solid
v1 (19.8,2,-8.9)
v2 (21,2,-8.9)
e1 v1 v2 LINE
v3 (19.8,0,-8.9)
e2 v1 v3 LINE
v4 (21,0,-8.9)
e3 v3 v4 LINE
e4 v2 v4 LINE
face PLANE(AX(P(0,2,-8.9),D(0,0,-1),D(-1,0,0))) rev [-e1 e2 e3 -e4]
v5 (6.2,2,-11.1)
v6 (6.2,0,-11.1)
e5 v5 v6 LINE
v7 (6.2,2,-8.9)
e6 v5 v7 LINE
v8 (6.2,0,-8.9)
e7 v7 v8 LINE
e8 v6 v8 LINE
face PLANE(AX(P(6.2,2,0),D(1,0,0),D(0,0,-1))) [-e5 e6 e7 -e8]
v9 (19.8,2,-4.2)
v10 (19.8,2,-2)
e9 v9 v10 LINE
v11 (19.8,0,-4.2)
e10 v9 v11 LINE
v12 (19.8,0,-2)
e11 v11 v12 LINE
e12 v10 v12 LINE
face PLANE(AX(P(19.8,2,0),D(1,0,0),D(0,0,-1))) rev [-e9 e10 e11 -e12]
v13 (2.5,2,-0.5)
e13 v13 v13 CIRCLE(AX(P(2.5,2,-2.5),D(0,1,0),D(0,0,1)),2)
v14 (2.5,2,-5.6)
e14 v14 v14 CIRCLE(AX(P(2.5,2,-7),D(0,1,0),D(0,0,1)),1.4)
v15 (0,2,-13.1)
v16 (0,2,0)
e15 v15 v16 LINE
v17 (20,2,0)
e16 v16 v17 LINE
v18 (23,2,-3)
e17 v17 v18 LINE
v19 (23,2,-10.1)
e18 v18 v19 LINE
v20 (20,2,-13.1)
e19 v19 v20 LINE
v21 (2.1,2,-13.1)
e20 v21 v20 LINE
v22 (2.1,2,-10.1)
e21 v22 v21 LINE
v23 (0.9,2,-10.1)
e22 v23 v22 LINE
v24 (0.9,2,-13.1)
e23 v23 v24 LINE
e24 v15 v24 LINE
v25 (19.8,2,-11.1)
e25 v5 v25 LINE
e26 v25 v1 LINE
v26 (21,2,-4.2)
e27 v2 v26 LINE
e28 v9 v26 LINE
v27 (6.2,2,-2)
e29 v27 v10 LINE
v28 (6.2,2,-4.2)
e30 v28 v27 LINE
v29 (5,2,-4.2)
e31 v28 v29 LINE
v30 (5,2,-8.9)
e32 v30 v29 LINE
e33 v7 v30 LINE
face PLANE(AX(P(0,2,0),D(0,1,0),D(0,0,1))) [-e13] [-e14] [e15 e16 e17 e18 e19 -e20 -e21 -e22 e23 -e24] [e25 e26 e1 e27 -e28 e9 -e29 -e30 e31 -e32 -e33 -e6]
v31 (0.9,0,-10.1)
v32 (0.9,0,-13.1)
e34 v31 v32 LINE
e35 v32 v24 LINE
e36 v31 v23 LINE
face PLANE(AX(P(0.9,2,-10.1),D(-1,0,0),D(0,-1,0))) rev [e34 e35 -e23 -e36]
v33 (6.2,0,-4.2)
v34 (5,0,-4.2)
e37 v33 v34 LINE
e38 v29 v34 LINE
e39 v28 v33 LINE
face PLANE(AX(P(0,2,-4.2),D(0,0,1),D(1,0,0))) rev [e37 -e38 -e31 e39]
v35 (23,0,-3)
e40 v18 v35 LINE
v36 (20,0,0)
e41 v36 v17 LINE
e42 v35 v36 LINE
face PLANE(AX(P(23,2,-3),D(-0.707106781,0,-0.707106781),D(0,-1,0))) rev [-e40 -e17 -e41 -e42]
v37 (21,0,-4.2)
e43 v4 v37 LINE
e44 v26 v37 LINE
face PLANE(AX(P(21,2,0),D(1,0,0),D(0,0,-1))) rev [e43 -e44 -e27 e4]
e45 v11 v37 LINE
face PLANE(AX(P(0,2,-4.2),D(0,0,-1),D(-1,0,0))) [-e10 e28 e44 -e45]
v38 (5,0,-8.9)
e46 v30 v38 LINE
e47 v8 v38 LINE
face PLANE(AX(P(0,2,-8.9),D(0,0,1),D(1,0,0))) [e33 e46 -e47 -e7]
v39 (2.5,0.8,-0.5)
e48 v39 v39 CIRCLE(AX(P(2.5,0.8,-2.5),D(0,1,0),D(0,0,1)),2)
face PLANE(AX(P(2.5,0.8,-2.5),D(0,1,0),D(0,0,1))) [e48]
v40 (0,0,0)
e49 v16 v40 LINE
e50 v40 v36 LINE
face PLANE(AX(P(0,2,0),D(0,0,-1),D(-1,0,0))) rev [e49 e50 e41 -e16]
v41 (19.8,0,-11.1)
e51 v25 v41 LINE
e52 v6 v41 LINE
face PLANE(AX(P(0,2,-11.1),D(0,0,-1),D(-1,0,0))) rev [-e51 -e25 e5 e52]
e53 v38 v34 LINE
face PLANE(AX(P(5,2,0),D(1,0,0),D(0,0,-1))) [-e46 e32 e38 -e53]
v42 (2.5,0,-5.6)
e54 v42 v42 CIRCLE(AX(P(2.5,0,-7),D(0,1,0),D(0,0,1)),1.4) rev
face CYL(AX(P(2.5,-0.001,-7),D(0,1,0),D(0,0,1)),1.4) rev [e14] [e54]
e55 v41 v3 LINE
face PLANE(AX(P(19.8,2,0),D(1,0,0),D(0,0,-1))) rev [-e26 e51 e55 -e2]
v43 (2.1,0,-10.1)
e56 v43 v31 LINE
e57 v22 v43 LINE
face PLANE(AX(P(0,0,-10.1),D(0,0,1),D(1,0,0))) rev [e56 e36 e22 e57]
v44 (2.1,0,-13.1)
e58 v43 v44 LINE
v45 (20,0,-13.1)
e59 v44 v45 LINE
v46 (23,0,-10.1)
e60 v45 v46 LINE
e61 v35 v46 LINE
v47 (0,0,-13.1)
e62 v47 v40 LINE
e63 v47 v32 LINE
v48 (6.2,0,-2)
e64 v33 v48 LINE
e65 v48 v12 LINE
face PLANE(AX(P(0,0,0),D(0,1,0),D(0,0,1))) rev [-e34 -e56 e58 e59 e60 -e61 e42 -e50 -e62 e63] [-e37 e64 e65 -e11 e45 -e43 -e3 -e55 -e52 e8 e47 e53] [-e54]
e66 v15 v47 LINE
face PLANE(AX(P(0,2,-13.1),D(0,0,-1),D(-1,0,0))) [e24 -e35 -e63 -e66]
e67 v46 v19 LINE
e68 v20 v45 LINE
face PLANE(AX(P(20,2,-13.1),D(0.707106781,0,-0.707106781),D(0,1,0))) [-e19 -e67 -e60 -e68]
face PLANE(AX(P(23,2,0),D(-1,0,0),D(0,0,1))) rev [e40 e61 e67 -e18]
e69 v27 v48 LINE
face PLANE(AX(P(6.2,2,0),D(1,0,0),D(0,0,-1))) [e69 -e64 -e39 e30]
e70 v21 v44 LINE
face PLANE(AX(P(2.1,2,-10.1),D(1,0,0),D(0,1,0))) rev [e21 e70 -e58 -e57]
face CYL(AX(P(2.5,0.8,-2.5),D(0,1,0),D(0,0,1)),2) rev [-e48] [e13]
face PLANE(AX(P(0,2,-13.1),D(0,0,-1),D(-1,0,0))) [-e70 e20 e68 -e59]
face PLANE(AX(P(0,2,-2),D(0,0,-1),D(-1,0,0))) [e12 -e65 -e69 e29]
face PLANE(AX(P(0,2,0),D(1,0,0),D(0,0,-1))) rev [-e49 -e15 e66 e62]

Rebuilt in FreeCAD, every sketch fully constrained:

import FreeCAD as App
import Part
import Sketcher
from FreeCAD import Vector
Q = App.Units.Quantity


def edges_at(feature, points):
    """Names of the edges that pass closest to the given points."""
    edges = feature.Shape.Edges
    near = lambda p: min(range(len(edges)), key=lambda i: edges[i].distToShape(Part.Vertex(*p))[0])
    return sorted({f"Edge{near(p) + 1}" for p in points})

doc = App.newDocument("Part")
body = doc.addObject("PartDesign::Body", "Body")

sketch1 = doc.addObject("Sketcher::SketchObject", "Sketch")
body.addObject(sketch1)
sketch1.AttachmentSupport = (doc.XZ_Plane, [""])
sketch1.MapMode = "FlatFace"
sketch1.addGeometry(Part.LineSegment(Vector(0, -13.1, 0), Vector(0, 0, 0)), False)
sketch1.addGeometry(Part.LineSegment(Vector(0, 0, 0), Vector(23, 0, 0)), False)
sketch1.addGeometry(Part.LineSegment(Vector(23, 0, 0), Vector(23, -13.1, 0)), False)
sketch1.addGeometry(Part.LineSegment(Vector(23, -13.1, 0), Vector(0, -13.1, 0)), False)
sketch1.addGeometry(Part.LineSegment(Vector(5, -8.9, 0), Vector(6.2, -8.9, 0)), False)
sketch1.addGeometry(Part.LineSegment(Vector(6.2, -8.9, 0), Vector(6.2, -11.1, 0)), False)
sketch1.addGeometry(Part.LineSegment(Vector(6.2, -11.1, 0), Vector(19.8, -11.1, 0)), False)
sketch1.addGeometry(Part.LineSegment(Vector(19.8, -11.1, 0), Vector(19.8, -8.9, 0)), False)
sketch1.addGeometry(Part.LineSegment(Vector(19.8, -8.9, 0), Vector(21, -8.9, 0)), False)
sketch1.addGeometry(Part.LineSegment(Vector(21, -8.9, 0), Vector(21, -4.2, 0)), False)
sketch1.addGeometry(Part.LineSegment(Vector(21, -4.2, 0), Vector(19.8, -4.2, 0)), False)
sketch1.addGeometry(Part.LineSegment(Vector(19.8, -4.2, 0), Vector(19.8, -2, 0)), False)
sketch1.addGeometry(Part.LineSegment(Vector(19.8, -2, 0), Vector(6.2, -2, 0)), False)
sketch1.addGeometry(Part.LineSegment(Vector(6.2, -2, 0), Vector(6.2, -4.2, 0)), False)
sketch1.addGeometry(Part.LineSegment(Vector(6.2, -4.2, 0), Vector(5, -4.2, 0)), False)
sketch1.addGeometry(Part.LineSegment(Vector(5, -4.2, 0), Vector(5, -8.9, 0)), False)
sketch1.addConstraint(Sketcher.Constraint("Coincident", 0, 2, 1, 1))
sketch1.addConstraint(Sketcher.Constraint("Coincident", 1, 2, 2, 1))
sketch1.addConstraint(Sketcher.Constraint("Coincident", 2, 2, 3, 1))
sketch1.addConstraint(Sketcher.Constraint("Coincident", 3, 2, 0, 1))
sketch1.addConstraint(Sketcher.Constraint("Coincident", 4, 2, 5, 1))
sketch1.addConstraint(Sketcher.Constraint("Coincident", 5, 2, 6, 1))
sketch1.addConstraint(Sketcher.Constraint("Coincident", 6, 2, 7, 1))
sketch1.addConstraint(Sketcher.Constraint("Coincident", 7, 2, 8, 1))
sketch1.addConstraint(Sketcher.Constraint("Coincident", 8, 2, 9, 1))
sketch1.addConstraint(Sketcher.Constraint("Coincident", 9, 2, 10, 1))
sketch1.addConstraint(Sketcher.Constraint("Coincident", 10, 2, 11, 1))
sketch1.addConstraint(Sketcher.Constraint("Coincident", 11, 2, 12, 1))
sketch1.addConstraint(Sketcher.Constraint("Coincident", 12, 2, 13, 1))
sketch1.addConstraint(Sketcher.Constraint("Coincident", 13, 2, 14, 1))
sketch1.addConstraint(Sketcher.Constraint("Coincident", 14, 2, 15, 1))
sketch1.addConstraint(Sketcher.Constraint("Coincident", 15, 2, 4, 1))
sketch1.addConstraint(Sketcher.Constraint("Vertical", 0))
sketch1.addConstraint(Sketcher.Constraint("Horizontal", 1))
sketch1.addConstraint(Sketcher.Constraint("Vertical", 2))
sketch1.addConstraint(Sketcher.Constraint("Horizontal", 3))
sketch1.addConstraint(Sketcher.Constraint("Horizontal", 4))
sketch1.addConstraint(Sketcher.Constraint("Vertical", 5))
sketch1.addConstraint(Sketcher.Constraint("Horizontal", 6))
sketch1.addConstraint(Sketcher.Constraint("Vertical", 7))
sketch1.addConstraint(Sketcher.Constraint("Horizontal", 8))
sketch1.addConstraint(Sketcher.Constraint("Vertical", 9))
sketch1.addConstraint(Sketcher.Constraint("Horizontal", 10))
sketch1.addConstraint(Sketcher.Constraint("Vertical", 11))
sketch1.addConstraint(Sketcher.Constraint("Horizontal", 12))
sketch1.addConstraint(Sketcher.Constraint("Vertical", 13))
sketch1.addConstraint(Sketcher.Constraint("Horizontal", 14))
sketch1.addConstraint(Sketcher.Constraint("Vertical", 15))
sketch1.addConstraint(Sketcher.Constraint("Coincident", 0, 2, -1, 1))
sketch1.addConstraint(Sketcher.Constraint("Horizontal", 4, 2, 7, 2))
sketch1.addConstraint(Sketcher.Constraint("Horizontal", 10, 2, 13, 2))
sketch1.addConstraint(Sketcher.Constraint("Vertical", 7, 2, 10, 2))
sketch1.addConstraint(Sketcher.Constraint("Vertical", 5, 2, 12, 2))
sketch1.addConstraint(Sketcher.Constraint("Equal", 4, 8))
sketch1.addConstraint(Sketcher.Constraint("Equal", 7, 11))
sketch1.addConstraint(Sketcher.Constraint("DistanceX", 1, 1, 1, 2, Q("23 mm")))
sketch1.addConstraint(Sketcher.Constraint("DistanceX", 4, 1, 4, 2, Q("1.2 mm")))
sketch1.addConstraint(Sketcher.Constraint("DistanceX", 6, 1, 6, 2, Q("13.6 mm")))
sketch1.addConstraint(Sketcher.Constraint("DistanceY", 0, 1, 0, 2, Q("13.1 mm")))
sketch1.addConstraint(Sketcher.Constraint("DistanceY", 5, 2, 5, 1, Q("2.2 mm")))
sketch1.addConstraint(Sketcher.Constraint("DistanceY", 9, 1, 9, 2, Q("4.7 mm")))
sketch1.addConstraint(Sketcher.Constraint("DistanceX", -1, 1, 8, 2, Q("21 mm")))
sketch1.addConstraint(Sketcher.Constraint("DistanceY", 11, 2, -1, 1, Q("2 mm")))
pad1 = doc.addObject("PartDesign::Pad", "Pad")
body.addObject(pad1)
pad1.Profile = sketch1
pad1.Length = 2
pad1.Reversed = True

sketch2 = doc.addObject("Sketcher::SketchObject", "Sketch001")
body.addObject(sketch2)
sketch2.AttachmentSupport = (doc.XZ_Plane, [""])
sketch2.MapMode = "FlatFace"
sketch2.AttachmentOffset = App.Placement(Vector(0, 0, -2), App.Rotation())
sketch2.addGeometry(Part.Circle(Vector(2.5, -7, 0), Vector(0, 0, 1), 1.4), False)
sketch2.addConstraint(Sketcher.Constraint("Diameter", 0, Q("2.8 mm")))
sketch2.addConstraint(Sketcher.Constraint("DistanceY", 0, 3, -1, 1, Q("7 mm")))
sketch2.addConstraint(Sketcher.Constraint("DistanceX", -1, 1, 0, 3, Q("2.5 mm")))
pocket1 = doc.addObject("PartDesign::Pocket", "Pocket")
body.addObject(pocket1)
pocket1.Profile = sketch2
pocket1.Type = "UpToFirst"
pocket1.Reversed = True
doc.recompute()

chamfer = doc.addObject("PartDesign::Chamfer", "Chamfer")
body.addObject(chamfer)
chamfer.Base = (pocket1, edges_at(pocket1, [(23, 1, -13.1), (23, 1, 0)]))
chamfer.Size = 3

sketch3 = doc.addObject("Sketcher::SketchObject", "Sketch002")
body.addObject(sketch3)
sketch3.AttachmentSupport = (doc.XY_Plane, [""])
sketch3.MapMode = "FlatFace"
sketch3.AttachmentOffset = App.Placement(Vector(0, 0, -13.1), App.Rotation())
sketch3.addGeometry(Part.LineSegment(Vector(2.1, 2, 0), Vector(2.1, 0, 0)), False)
sketch3.addGeometry(Part.LineSegment(Vector(2.1, 0, 0), Vector(0.9, 0, 0)), False)
sketch3.addGeometry(Part.LineSegment(Vector(0.9, 0, 0), Vector(0.9, 2, 0)), False)
sketch3.addGeometry(Part.LineSegment(Vector(0.9, 2, 0), Vector(2.1, 2, 0)), False)
sketch3.addConstraint(Sketcher.Constraint("Coincident", 0, 2, 1, 1))
sketch3.addConstraint(Sketcher.Constraint("Coincident", 1, 2, 2, 1))
sketch3.addConstraint(Sketcher.Constraint("Coincident", 2, 2, 3, 1))
sketch3.addConstraint(Sketcher.Constraint("Coincident", 3, 2, 0, 1))
sketch3.addConstraint(Sketcher.Constraint("Vertical", 0))
sketch3.addConstraint(Sketcher.Constraint("Horizontal", 1))
sketch3.addConstraint(Sketcher.Constraint("Vertical", 2))
sketch3.addConstraint(Sketcher.Constraint("Horizontal", 3))
sketch3.addConstraint(Sketcher.Constraint("PointOnObject", 0, 2, -1))
sketch3.addConstraint(Sketcher.Constraint("DistanceY", 0, 2, 0, 1, Q("2 mm")))
sketch3.addConstraint(Sketcher.Constraint("DistanceX", 1, 2, 1, 1, Q("1.2 mm")))
sketch3.addConstraint(Sketcher.Constraint("DistanceX", -1, 1, 0, 2, Q("2.1 mm")))
pocket2 = doc.addObject("PartDesign::Pocket", "Pocket001")
body.addObject(pocket2)
pocket2.Profile = sketch3
pocket2.Length = 3
pocket2.Reversed = True

sketch4 = doc.addObject("Sketcher::SketchObject", "Sketch003")
body.addObject(sketch4)
sketch4.AttachmentSupport = (doc.XZ_Plane, [""])
sketch4.MapMode = "FlatFace"
sketch4.AttachmentOffset = App.Placement(Vector(0, 0, -2), App.Rotation())
sketch4.addGeometry(Part.Circle(Vector(2.5, -2.5, 0), Vector(0, 0, 1), 2), False)
sketch4.addConstraint(Sketcher.Constraint("Diameter", 0, Q("4 mm")))
sketch4.addConstraint(Sketcher.Constraint("DistanceX", -1, 1, 0, 3, Q("2.5 mm")))
sketch4.addConstraint(Sketcher.Constraint("DistanceY", 0, 3, -1, 1, Q("2.5 mm")))
pocket3 = doc.addObject("PartDesign::Pocket", "Pocket002")
body.addObject(pocket3)
pocket3.Profile = sketch4
pocket3.Length = 1.2
pocket3.Reversed = True

doc.recompute()
